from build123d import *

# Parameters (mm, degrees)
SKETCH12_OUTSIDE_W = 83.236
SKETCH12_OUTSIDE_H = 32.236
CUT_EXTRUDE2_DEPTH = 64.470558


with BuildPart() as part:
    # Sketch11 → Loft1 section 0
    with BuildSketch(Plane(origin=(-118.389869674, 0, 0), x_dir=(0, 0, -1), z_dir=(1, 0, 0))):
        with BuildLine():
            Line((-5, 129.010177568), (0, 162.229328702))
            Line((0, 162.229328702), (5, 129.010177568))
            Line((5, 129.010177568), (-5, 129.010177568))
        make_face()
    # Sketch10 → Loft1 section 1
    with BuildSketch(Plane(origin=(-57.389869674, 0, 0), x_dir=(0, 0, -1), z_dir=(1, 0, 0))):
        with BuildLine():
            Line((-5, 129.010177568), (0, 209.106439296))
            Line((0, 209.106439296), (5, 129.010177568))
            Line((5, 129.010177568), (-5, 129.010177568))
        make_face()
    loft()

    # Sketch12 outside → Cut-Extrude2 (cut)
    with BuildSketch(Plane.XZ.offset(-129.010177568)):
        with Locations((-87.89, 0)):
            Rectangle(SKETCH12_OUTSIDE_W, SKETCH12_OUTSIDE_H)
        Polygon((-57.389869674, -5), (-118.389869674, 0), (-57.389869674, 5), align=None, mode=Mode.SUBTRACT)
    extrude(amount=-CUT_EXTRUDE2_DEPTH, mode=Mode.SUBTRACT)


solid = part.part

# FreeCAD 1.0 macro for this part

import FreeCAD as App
import Part
import Sketcher
Q = App.Units.Quantity


def add_polygon(sketch, points):
    """Adds a closed chain of lines whose ends are joined by coincident constraints."""
    first, n = sketch.GeometryCount, len(points)
    for a, b in zip(points, points[1:] + points[:1]):
        sketch.addGeometry(Part.LineSegment(App.Vector(*a, 0), App.Vector(*b, 0)), False)
    for i in range(n):
        sketch.addConstraint(Sketcher.Constraint("Coincident", first + i, 2, first + (i + 1) % n, 1))

doc = App.newDocument("Part")
body = doc.addObject("PartDesign::Body", "Body")

# Sketch on YZ plane
sketch1 = doc.addObject("Sketcher::SketchObject", "Sketch")
body.addObject(sketch1)
sketch1.AttachmentSupport = (doc.YZ_Plane, [""])
sketch1.MapMode = "FlatFace"
sketch1.AttachmentOffset = App.Placement(App.Vector(0, 0, -118.38987), App.Rotation())
add_polygon(sketch1, [(162, 0), (129, 5), (129, -5)])  # lines 0-2
sketch1.addConstraint(Sketcher.Constraint("Vertical", 1))
sketch1.addConstraint(Sketcher.Constraint("PointOnObject", 2, 2, -1))
sketch1.addConstraint(Sketcher.Constraint("Equal", 0, 2))
sketch1.addConstraint(Sketcher.Constraint("DistanceY", 1, 2, 1, 1, Q("10 mm")))
sketch1.addConstraint(Sketcher.Constraint("DistanceX", -1, 1, 2, 2, Q("162.229329 mm")))
sketch1.addConstraint(Sketcher.Constraint("DistanceX", 0, 2, 2, 2, Q("33.219151 mm")))

# Sketch on YZ plane
sketch2 = doc.addObject("Sketcher::SketchObject", "Sketch001")
body.addObject(sketch2)
sketch2.AttachmentSupport = (doc.YZ_Plane, [""])
sketch2.MapMode = "FlatFace"
sketch2.AttachmentOffset = App.Placement(App.Vector(0, 0, -57.38987), App.Rotation())
add_polygon(sketch2, [(209, 0), (129, 5), (129, -5)])  # lines 0-2
sketch2.addConstraint(Sketcher.Constraint("Vertical", 1))
sketch2.addConstraint(Sketcher.Constraint("PointOnObject", 2, 2, -1))
sketch2.addConstraint(Sketcher.Constraint("Equal", 0, 2))
sketch2.addConstraint(Sketcher.Constraint("DistanceY", 1, 2, 1, 1, Q("10 mm")))
sketch2.addConstraint(Sketcher.Constraint("DistanceX", -1, 1, 2, 2, Q("209.106439 mm")))
sketch2.addConstraint(Sketcher.Constraint("DistanceX", 0, 2, 2, 2, Q("80.096262 mm")))

additiveloft = doc.addObject("PartDesign::AdditiveLoft", "AdditiveLoft")
body.addObject(additiveloft)
additiveloft.Profile = sketch1
additiveloft.Sections = [sketch2]

# Sketch on XZ plane
sketch3 = doc.addObject("Sketcher::SketchObject", "Sketch002")
body.addObject(sketch3)
sketch3.AttachmentSupport = (doc.XZ_Plane, [""])
sketch3.MapMode = "FlatFace"
sketch3.AttachmentOffset = App.Placement(App.Vector(0, 0, -129.010178), App.Rotation())
add_polygon(sketch3, [(-130, 16), (-130, -16), (-46, -16), (-46, 16)])  # lines 0-3
add_polygon(sketch3, [(-57, 5), (-57, -5), (-118, 0)])  # lines 4-6
sketch3.addConstraint(Sketcher.Constraint("Vertical", 0))
sketch3.addConstraint(Sketcher.Constraint("Horizontal", 1))
sketch3.addConstraint(Sketcher.Constraint("Vertical", 2))
sketch3.addConstraint(Sketcher.Constraint("Horizontal", 3))
sketch3.addConstraint(Sketcher.Constraint("Vertical", 4))
sketch3.addConstraint(Sketcher.Constraint("PointOnObject", 5, 2, -1))
sketch3.addConstraint(Sketcher.Constraint("Equal", 5, 6))
sketch3.addConstraint(Sketcher.Constraint("DistanceY", 4, 2, 4, 1, Q("10 mm")))
sketch3.addConstraint(Sketcher.Constraint("DistanceX", 5, 2, 4, 2, Q("61 mm")))
sketch3.addConstraint(Sketcher.Constraint("DistanceX", 1, 1, 1, 2, Q("83.236 mm")))
sketch3.addConstraint(Sketcher.Constraint("DistanceY", 0, 2, 0, 1, Q("32.236 mm")))
sketch3.addConstraint(Sketcher.Constraint("DistanceX", 0, 2, -1, 1, Q("129.508 mm")))
sketch3.addConstraint(Sketcher.Constraint("DistanceY", 0, 2, -1, 1, Q("16.118 mm")))
sketch3.addConstraint(Sketcher.Constraint("DistanceX", 4, 2, -1, 1, Q("57.38987 mm")))
pocket1 = doc.addObject("PartDesign::Pocket", "Pocket")
body.addObject(pocket1)
pocket1.Profile = sketch3
pocket1.Length = 64.470558

doc.recompute()
